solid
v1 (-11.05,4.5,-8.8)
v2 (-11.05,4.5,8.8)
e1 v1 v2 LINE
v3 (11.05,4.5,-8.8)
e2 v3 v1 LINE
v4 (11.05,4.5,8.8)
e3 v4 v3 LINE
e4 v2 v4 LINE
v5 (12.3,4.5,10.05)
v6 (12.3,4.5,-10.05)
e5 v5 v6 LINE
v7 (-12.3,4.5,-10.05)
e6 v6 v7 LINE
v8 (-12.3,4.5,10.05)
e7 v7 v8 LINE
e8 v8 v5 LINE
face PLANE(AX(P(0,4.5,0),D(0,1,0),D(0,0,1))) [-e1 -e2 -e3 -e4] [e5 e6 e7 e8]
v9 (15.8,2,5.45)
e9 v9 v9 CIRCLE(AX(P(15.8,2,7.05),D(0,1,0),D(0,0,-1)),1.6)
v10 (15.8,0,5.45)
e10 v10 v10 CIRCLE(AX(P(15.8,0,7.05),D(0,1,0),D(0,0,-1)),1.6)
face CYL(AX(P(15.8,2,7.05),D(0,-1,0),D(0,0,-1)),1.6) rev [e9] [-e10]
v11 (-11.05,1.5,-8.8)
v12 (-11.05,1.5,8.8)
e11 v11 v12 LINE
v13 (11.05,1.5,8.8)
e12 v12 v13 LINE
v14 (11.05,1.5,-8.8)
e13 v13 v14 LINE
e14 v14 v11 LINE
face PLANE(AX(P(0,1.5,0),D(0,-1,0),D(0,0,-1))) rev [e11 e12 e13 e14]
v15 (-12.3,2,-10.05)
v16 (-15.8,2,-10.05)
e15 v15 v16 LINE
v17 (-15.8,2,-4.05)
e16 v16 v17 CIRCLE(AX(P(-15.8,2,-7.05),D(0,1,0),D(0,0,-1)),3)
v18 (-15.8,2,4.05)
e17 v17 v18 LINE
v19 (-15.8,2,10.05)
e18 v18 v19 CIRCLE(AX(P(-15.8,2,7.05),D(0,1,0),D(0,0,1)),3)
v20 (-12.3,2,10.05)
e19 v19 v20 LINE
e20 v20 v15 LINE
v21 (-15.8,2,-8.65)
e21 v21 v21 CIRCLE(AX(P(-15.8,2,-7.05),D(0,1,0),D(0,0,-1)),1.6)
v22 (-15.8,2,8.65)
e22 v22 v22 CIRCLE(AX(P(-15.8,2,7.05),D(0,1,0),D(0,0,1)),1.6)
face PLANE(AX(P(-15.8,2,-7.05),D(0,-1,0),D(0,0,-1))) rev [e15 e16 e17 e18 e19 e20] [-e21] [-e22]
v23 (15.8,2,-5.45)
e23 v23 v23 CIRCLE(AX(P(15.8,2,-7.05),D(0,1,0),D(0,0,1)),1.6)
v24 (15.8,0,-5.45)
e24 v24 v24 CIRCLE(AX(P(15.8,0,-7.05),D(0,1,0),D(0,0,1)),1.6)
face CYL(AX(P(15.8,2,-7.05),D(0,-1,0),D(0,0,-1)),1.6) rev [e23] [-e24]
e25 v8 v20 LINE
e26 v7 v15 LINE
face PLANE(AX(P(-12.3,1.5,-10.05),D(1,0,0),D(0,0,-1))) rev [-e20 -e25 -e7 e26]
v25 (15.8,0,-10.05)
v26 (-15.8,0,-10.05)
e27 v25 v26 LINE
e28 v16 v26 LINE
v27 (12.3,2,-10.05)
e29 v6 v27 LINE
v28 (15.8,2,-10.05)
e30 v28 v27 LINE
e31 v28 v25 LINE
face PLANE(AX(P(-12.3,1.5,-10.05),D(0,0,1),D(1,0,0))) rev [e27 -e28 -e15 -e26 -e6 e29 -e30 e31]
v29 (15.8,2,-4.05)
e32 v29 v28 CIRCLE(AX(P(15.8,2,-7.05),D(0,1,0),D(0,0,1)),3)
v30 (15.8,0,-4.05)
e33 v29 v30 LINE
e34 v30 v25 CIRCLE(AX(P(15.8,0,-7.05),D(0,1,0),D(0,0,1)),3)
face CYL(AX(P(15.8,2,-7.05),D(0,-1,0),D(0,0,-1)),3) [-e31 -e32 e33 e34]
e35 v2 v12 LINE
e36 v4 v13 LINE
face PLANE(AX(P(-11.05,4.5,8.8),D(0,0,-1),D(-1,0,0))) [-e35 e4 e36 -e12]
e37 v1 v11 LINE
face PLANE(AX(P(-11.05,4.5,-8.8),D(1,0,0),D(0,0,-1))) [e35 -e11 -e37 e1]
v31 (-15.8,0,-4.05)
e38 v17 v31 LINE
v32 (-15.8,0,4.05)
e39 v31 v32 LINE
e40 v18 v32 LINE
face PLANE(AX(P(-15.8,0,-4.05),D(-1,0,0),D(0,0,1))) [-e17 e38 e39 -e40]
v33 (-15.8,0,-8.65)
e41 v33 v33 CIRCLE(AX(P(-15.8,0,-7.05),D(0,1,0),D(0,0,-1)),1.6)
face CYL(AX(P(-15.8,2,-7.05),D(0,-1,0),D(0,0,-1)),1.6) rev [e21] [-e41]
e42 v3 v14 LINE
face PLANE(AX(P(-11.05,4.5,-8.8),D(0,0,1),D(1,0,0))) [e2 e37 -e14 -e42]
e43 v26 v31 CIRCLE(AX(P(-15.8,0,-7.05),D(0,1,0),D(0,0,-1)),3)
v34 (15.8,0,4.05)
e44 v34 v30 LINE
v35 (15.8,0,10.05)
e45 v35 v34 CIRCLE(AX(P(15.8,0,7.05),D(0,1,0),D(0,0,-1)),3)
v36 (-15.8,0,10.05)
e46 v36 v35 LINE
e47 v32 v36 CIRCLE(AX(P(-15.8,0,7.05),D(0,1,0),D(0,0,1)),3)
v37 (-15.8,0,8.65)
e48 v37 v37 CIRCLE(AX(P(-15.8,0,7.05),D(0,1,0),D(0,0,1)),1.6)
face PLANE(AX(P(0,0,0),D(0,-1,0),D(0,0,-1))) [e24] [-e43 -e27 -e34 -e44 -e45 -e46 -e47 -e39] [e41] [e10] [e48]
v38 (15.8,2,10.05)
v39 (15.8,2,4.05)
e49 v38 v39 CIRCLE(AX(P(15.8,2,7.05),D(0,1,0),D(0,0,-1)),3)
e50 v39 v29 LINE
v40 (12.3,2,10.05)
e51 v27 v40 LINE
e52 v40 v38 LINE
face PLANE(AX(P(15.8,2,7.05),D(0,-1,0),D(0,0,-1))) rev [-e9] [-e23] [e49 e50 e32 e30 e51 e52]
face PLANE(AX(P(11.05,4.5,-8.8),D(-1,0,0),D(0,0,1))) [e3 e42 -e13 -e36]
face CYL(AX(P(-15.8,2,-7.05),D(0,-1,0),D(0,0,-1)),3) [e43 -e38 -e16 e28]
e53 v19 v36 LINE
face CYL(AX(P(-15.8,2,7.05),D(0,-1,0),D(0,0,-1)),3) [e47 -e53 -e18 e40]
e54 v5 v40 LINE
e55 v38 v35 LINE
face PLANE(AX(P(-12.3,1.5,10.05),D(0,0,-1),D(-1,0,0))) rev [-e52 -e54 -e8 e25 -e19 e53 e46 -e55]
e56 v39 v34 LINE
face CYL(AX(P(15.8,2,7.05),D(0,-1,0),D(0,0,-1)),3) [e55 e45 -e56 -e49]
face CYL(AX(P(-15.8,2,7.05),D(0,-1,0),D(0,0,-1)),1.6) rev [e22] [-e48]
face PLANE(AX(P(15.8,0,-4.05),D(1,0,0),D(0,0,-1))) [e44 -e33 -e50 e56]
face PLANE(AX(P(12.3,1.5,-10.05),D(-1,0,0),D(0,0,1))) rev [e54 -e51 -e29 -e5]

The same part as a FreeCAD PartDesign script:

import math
import FreeCAD as App
import Part
import Sketcher
from FreeCAD import Vector
Q = App.Units.Quantity

doc = App.newDocument("Part")
body = doc.addObject("PartDesign::Body", "Body")

# Sketch on XZ plane
sketch1 = body.newObject("Sketcher::SketchObject", "Sketch")
sketch1.AttachmentSupport = (doc.getObject("XZ_Plane"), [""])
sketch1.MapMode = "FlatFace"
sketch1.addGeometry(Part.LineSegment(Vector(-12, -10, 0), Vector(-12, 10, 0)), False)
sketch1.addGeometry(Part.LineSegment(Vector(-12, 10, 0), Vector(12, 10, 0)), False)
sketch1.addGeometry(Part.LineSegment(Vector(12, 10, 0), Vector(12, -10, 0)), False)
sketch1.addGeometry(Part.LineSegment(Vector(12, -10, 0), Vector(-12, -10, 0)), False)
sketch1.addConstraint(Sketcher.Constraint("Coincident", 0, 2, 1, 1))
sketch1.addConstraint(Sketcher.Constraint("Coincident", 1, 2, 2, 1))
sketch1.addConstraint(Sketcher.Constraint("Coincident", 2, 2, 3, 1))
sketch1.addConstraint(Sketcher.Constraint("Coincident", 3, 2, 0, 1))
sketch1.addConstraint(Sketcher.Constraint("Vertical", 0))
sketch1.addConstraint(Sketcher.Constraint("Horizontal", 1))
sketch1.addConstraint(Sketcher.Constraint("Vertical", 2))
sketch1.addConstraint(Sketcher.Constraint("Horizontal", 3))
sketch1.addConstraint(Sketcher.Constraint("Symmetric", 0, 2, 2, 2, -1, 1))
sketch1.addConstraint(Sketcher.Constraint("DistanceX", 1, 1, 1, 2, Q("24.6 mm")))
sketch1.addConstraint(Sketcher.Constraint("DistanceY", 0, 1, 0, 2, Q("20.1 mm")))
pad1 = body.newObject("PartDesign::Pad", "Pad")
pad1.Profile = sketch1
pad1.Length = 1.5
pad1.Reversed = True

# Sketch on XZ plane
sketch2 = body.newObject("Sketcher::SketchObject", "Sketch001")
sketch2.AttachmentSupport = (doc.getObject("XZ_Plane"), [""])
sketch2.MapMode = "FlatFace"
sketch2.AttachmentOffset = App.Placement(Vector(0, 0, -1.5), App.Rotation())
sketch2.addGeometry(Part.LineSegment(Vector(-12, -10, 0), Vector(-12, 10, 0)), False)
sketch2.addGeometry(Part.LineSegment(Vector(-12, 10, 0), Vector(12, 10, 0)), False)
sketch2.addGeometry(Part.LineSegment(Vector(12, 10, 0), Vector(12, -10, 0)), False)
sketch2.addGeometry(Part.LineSegment(Vector(12, -10, 0), Vector(-12, -10, 0)), False)
sketch2.addGeometry(Part.LineSegment(Vector(11, 9, 0), Vector(-11, 9, 0)), False)
sketch2.addGeometry(Part.LineSegment(Vector(-11, 9, 0), Vector(-11, -9, 0)), False)
sketch2.addGeometry(Part.LineSegment(Vector(-11, -9, 0), Vector(11, -9, 0)), False)
sketch2.addGeometry(Part.LineSegment(Vector(11, -9, 0), Vector(11, 9, 0)), False)
sketch2.addConstraint(Sketcher.Constraint("Coincident", 0, 2, 1, 1))
sketch2.addConstraint(Sketcher.Constraint("Coincident", 1, 2, 2, 1))
sketch2.addConstraint(Sketcher.Constraint("Coincident", 2, 2, 3, 1))
sketch2.addConstraint(Sketcher.Constraint("Coincident", 3, 2, 0, 1))
sketch2.addConstraint(Sketcher.Constraint("Coincident", 4, 2, 5, 1))
sketch2.addConstraint(Sketcher.Constraint("Coincident", 5, 2, 6, 1))
sketch2.addConstraint(Sketcher.Constraint("Coincident", 6, 2, 7, 1))
sketch2.addConstraint(Sketcher.Constraint("Coincident", 7, 2, 4, 1))
sketch2.addConstraint(Sketcher.Constraint("Vertical", 0))
sketch2.addConstraint(Sketcher.Constraint("Horizontal", 1))
sketch2.addConstraint(Sketcher.Constraint("Vertical", 2))
sketch2.addConstraint(Sketcher.Constraint("Horizontal", 3))
sketch2.addConstraint(Sketcher.Constraint("Horizontal", 4))
sketch2.addConstraint(Sketcher.Constraint("Vertical", 5))
sketch2.addConstraint(Sketcher.Constraint("Horizontal", 6))
sketch2.addConstraint(Sketcher.Constraint("Vertical", 7))
sketch2.addConstraint(Sketcher.Constraint("Symmetric", 0, 2, 2, 2, -1, 1))
sketch2.addConstraint(Sketcher.Constraint("Symmetric", 4, 2, 6, 2, -1, 1))
sketch2.addConstraint(Sketcher.Constraint("DistanceX", 1, 1, 1, 2, Q("24.6 mm")))
sketch2.addConstraint(Sketcher.Constraint("DistanceX", 4, 2, 4, 1, Q("22.1 mm")))
sketch2.addConstraint(Sketcher.Constraint("DistanceY", 0, 1, 0, 2, Q("20.1 mm")))
sketch2.addConstraint(Sketcher.Constraint("DistanceY", 5, 2, 5, 1, Q("17.6 mm")))
pad2 = body.newObject("PartDesign::Pad", "Pad001")
pad2.Profile = sketch2
pad2.Length = 3
pad2.Reversed = True

# Sketch on XZ plane
sketch3 = body.newObject("Sketcher::SketchObject", "Sketch002")
sketch3.AttachmentSupport = (doc.getObject("XZ_Plane"), [""])
sketch3.MapMode = "FlatFace"
sketch3.addGeometry(Part.LineSegment(Vector(15.8, -10.1, 0), Vector(12.3, -10.1, 0)), False)
sketch3.addGeometry(Part.LineSegment(Vector(12.3, -10.1, 0), Vector(12.3, -4, 0)), False)
sketch3.addGeometry(Part.LineSegment(Vector(12.3, -4, 0), Vector(15.8, -4, 0)), False)
sketch3.addGeometry(Part.ArcOfCircle(Part.Circle(Vector(15.8, -7, 0), Vector(0, 0, 1), 3), math.radians(-90), math.radians(90)), False)
sketch3.addGeometry(Part.Circle(Vector(15.8, -7, 0), Vector(0, 0, 1), 1.6), False)
sketch3.addGeometry(Part.LineSegment(Vector(-15.8, -4, 0), Vector(-12.3, -4, 0)), False)
sketch3.addGeometry(Part.LineSegment(Vector(-12.3, -4, 0), Vector(-12.3, -10.1, 0)), False)
sketch3.addGeometry(Part.LineSegment(Vector(-12.3, -10.1, 0), Vector(-15.8, -10.1, 0)), False)
sketch3.addGeometry(Part.ArcOfCircle(Part.Circle(Vector(-15.8, -7, 0), Vector(0, 0, 1), 3), math.radians(90), math.radians(270)), False)
sketch3.addGeometry(Part.Circle(Vector(-15.8, -7, 0), Vector(0, 0, 1), 1.6), False)
sketch3.addGeometry(Part.LineSegment(Vector(15.8, 4, 0), Vector(12.3, 4, 0)), False)
sketch3.addGeometry(Part.LineSegment(Vector(12.3, 4, 0), Vector(12.3, 10.1, 0)), False)
sketch3.addGeometry(Part.LineSegment(Vector(12.3, 10.1, 0), Vector(15.8, 10.1, 0)), False)
sketch3.addGeometry(Part.ArcOfCircle(Part.Circle(Vector(15.8, 7, 0), Vector(0, 0, 1), 3), math.radians(-90), math.radians(90)), False)
sketch3.addGeometry(Part.Circle(Vector(15.8, 7, 0), Vector(0, 0, 1), 1.6), False)
sketch3.addGeometry(Part.LineSegment(Vector(-15.8, 10.1, 0), Vector(-12.3, 10.1, 0)), False)
sketch3.addGeometry(Part.LineSegment(Vector(-12.3, 10.1, 0), Vector(-12.3, 4, 0)), False)
sketch3.addGeometry(Part.LineSegment(Vector(-12.3, 4, 0), Vector(-15.8, 4, 0)), False)
sketch3.addGeometry(Part.ArcOfCircle(Part.Circle(Vector(-15.8, 7, 0), Vector(0, 0, 1), 3), math.radians(90), math.radians(270)), False)
sketch3.addGeometry(Part.Circle(Vector(-15.8, 7, 0), Vector(0, 0, 1), 1.6), False)
sketch3.addConstraint(Sketcher.Constraint("Coincident", 0, 2, 1, 1))
sketch3.addConstraint(Sketcher.Constraint("Coincident", 1, 2, 2, 1))
sketch3.addConstraint(Sketcher.Constraint("Tangent", 2, 2, 3, 2))
sketch3.addConstraint(Sketcher.Constraint("Tangent", 3, 1, 0, 1))
sketch3.addConstraint(Sketcher.Constraint("Coincident", 5, 2, 6, 1))
sketch3.addConstraint(Sketcher.Constraint("Coincident", 6, 2, 7, 1))
sketch3.addConstraint(Sketcher.Constraint("Tangent", 7, 2, 8, 2))
sketch3.addConstraint(Sketcher.Constraint("Tangent", 8, 1, 5, 1))
sketch3.addConstraint(Sketcher.Constraint("Coincident", 10, 2, 11, 1))
sketch3.addConstraint(Sketcher.Constraint("Coincident", 11, 2, 12, 1))
sketch3.addConstraint(Sketcher.Constraint("Tangent", 12, 2, 13, 2))
sketch3.addConstraint(Sketcher.Constraint("Tangent", 13, 1, 10, 1))
sketch3.addConstraint(Sketcher.Constraint("Coincident", 15, 2, 16, 1))
sketch3.addConstraint(Sketcher.Constraint("Coincident", 16, 2, 17, 1))
sketch3.addConstraint(Sketcher.Constraint("Tangent", 17, 2, 18, 2))
sketch3.addConstraint(Sketcher.Constraint("Tangent", 18, 1, 15, 1))
sketch3.addConstraint(Sketcher.Constraint("Horizontal", 0))
sketch3.addConstraint(Sketcher.Constraint("Vertical", 1))
sketch3.addConstraint(Sketcher.Constraint("Horizontal", 2))
sketch3.addConstraint(Sketcher.Constraint("Horizontal", 5))
sketch3.addConstraint(Sketcher.Constraint("Vertical", 6))
sketch3.addConstraint(Sketcher.Constraint("Horizontal", 7))
sketch3.addConstraint(Sketcher.Constraint("Horizontal", 10))
sketch3.addConstraint(Sketcher.Constraint("Vertical", 11))
sketch3.addConstraint(Sketcher.Constraint("Horizontal", 12))
sketch3.addConstraint(Sketcher.Constraint("Horizontal", 15))
sketch3.addConstraint(Sketcher.Constraint("Vertical", 16))
sketch3.addConstraint(Sketcher.Constraint("Horizontal", 17))
sketch3.addConstraint(Sketcher.Constraint("Coincident", 4, 3, 3, 3))
sketch3.addConstraint(Sketcher.Constraint("Coincident", 9, 3, 8, 3))
sketch3.addConstraint(Sketcher.Constraint("Coincident", 14, 3, 13, 3))
sketch3.addConstraint(Sketcher.Constraint("Coincident", 19, 3, 18, 3))
sketch3.addConstraint(Sketcher.Constraint("Equal", 3, 8))
sketch3.addConstraint(Sketcher.Constraint("Equal", 4, 9))
sketch3.addConstraint(Sketcher.Constraint("Equal", 8, 13))
sketch3.addConstraint(Sketcher.Constraint("Equal", 9, 14))
sketch3.addConstraint(Sketcher.Constraint("Equal", 13, 18))
sketch3.addConstraint(Sketcher.Constraint("Equal", 14, 19))
sketch3.addConstraint(Sketcher.Constraint("Symmetric", 8, 3, 13, 3, -1, 1))
sketch3.addConstraint(Sketcher.Constraint("Symmetric", 3, 3, 18, 3, -1, 1))
sketch3.addConstraint(Sketcher.Constraint("Symmetric", 3, 3, 8, 3, -2))
sketch3.addConstraint(Sketcher.Constraint("Vertical", 1, 2, 10, 2))
sketch3.addConstraint(Sketcher.Constraint("Vertical", 6, 2, 15, 2))
sketch3.addConstraint(Sketcher.Constraint("Equal", 2, 5))
sketch3.addConstraint(Sketcher.Constraint("Radius", 3, Q("3 mm")))
sketch3.addConstraint(Sketcher.Constraint("Diameter", 4, Q("3.2 mm")))
sketch3.addConstraint(Sketcher.Constraint("DistanceX", 0, 2, 0, 1, Q("3.5 mm")))
sketch3.addConstraint(Sketcher.Constraint("DistanceX", -1, 1, 3, 3, Q("15.8 mm")))
sketch3.addConstraint(Sketcher.Constraint("DistanceY", 3, 3, 13, 3, Q("14.1 mm")))
pad3 = body.newObject("PartDesign::Pad", "Pad002")
pad3.Profile = sketch3
pad3.Length = 2
pad3.Reversed = True

# Sketch on XZ plane
sketch4 = body.newObject("Sketcher::SketchObject", "Sketch003")
sketch4.AttachmentSupport = (doc.getObject("XZ_Plane"), [""])
sketch4.MapMode = "FlatFace"
sketch4.AttachmentOffset = App.Placement(Vector(0, 0, -2), App.Rotation())
sketch4.addGeometry(Part.LineSegment(Vector(-15.8, -4, 0), Vector(-15.8, 4, 0)), False)
sketch4.addGeometry(Part.LineSegment(Vector(-15.8, 4, 0), Vector(-12.3, 4, 0)), False)
sketch4.addGeometry(Part.LineSegment(Vector(-12.3, 4, 0), Vector(-12.3, -4, 0)), False)
sketch4.addGeometry(Part.LineSegment(Vector(-12.3, -4, 0), Vector(-15.8, -4, 0)), False)
sketch4.addGeometry(Part.LineSegment(Vector(12.3, -4, 0), Vector(12.3, 4, 0)), False)
sketch4.addGeometry(Part.LineSegment(Vector(12.3, 4, 0), Vector(15.8, 4, 0)), False)
sketch4.addGeometry(Part.LineSegment(Vector(15.8, 4, 0), Vector(15.8, -4, 0)), False)
sketch4.addGeometry(Part.LineSegment(Vector(15.8, -4, 0), Vector(12.3, -4, 0)), False)
sketch4.addConstraint(Sketcher.Constraint("Coincident", 0, 2, 1, 1))
sketch4.addConstraint(Sketcher.Constraint("Coincident", 1, 2, 2, 1))
sketch4.addConstraint(Sketcher.Constraint("Coincident", 2, 2, 3, 1))
sketch4.addConstraint(Sketcher.Constraint("Coincident", 3, 2, 0, 1))
sketch4.addConstraint(Sketcher.Constraint("Coincident", 4, 2, 5, 1))
sketch4.addConstraint(Sketcher.Constraint("Coincident", 5, 2, 6, 1))
sketch4.addConstraint(Sketcher.Constraint("Coincident", 6, 2, 7, 1))
sketch4.addConstraint(Sketcher.Constraint("Coincident", 7, 2, 4, 1))
sketch4.addConstraint(Sketcher.Constraint("Vertical", 0))
sketch4.addConstraint(Sketcher.Constraint("Horizontal", 1))
sketch4.addConstraint(Sketcher.Constraint("Vertical", 2))
sketch4.addConstraint(Sketcher.Constraint("Horizontal", 3))
sketch4.addConstraint(Sketcher.Constraint("Vertical", 4))
sketch4.addConstraint(Sketcher.Constraint("Horizontal", 5))
sketch4.addConstraint(Sketcher.Constraint("Vertical", 6))
sketch4.addConstraint(Sketcher.Constraint("Horizontal", 7))
sketch4.addConstraint(Sketcher.Constraint("Symmetric", 2, 2, 4, 2, -1, 1))
sketch4.addConstraint(Sketcher.Constraint("Symmetric", 0, 2, 6, 2, -1, 1))
sketch4.addConstraint(Sketcher.Constraint("Horizontal", 1, 2, 4, 2))
sketch4.addConstraint(Sketcher.Constraint("DistanceX", 1, 1, 1, 2, Q("3.5 mm")))
sketch4.addConstraint(Sketcher.Constraint("DistanceY", 0, 1, 0, 2, Q("8.1 mm")))
sketch4.addConstraint(Sketcher.Constraint("DistanceX", 0, 2, -1, 1, Q("15.8 mm")))
pad4 = body.newObject("PartDesign::Pad", "Pad003")
pad4.Profile = sketch4
pad4.Type = "UpToLast"

doc.recompute()
